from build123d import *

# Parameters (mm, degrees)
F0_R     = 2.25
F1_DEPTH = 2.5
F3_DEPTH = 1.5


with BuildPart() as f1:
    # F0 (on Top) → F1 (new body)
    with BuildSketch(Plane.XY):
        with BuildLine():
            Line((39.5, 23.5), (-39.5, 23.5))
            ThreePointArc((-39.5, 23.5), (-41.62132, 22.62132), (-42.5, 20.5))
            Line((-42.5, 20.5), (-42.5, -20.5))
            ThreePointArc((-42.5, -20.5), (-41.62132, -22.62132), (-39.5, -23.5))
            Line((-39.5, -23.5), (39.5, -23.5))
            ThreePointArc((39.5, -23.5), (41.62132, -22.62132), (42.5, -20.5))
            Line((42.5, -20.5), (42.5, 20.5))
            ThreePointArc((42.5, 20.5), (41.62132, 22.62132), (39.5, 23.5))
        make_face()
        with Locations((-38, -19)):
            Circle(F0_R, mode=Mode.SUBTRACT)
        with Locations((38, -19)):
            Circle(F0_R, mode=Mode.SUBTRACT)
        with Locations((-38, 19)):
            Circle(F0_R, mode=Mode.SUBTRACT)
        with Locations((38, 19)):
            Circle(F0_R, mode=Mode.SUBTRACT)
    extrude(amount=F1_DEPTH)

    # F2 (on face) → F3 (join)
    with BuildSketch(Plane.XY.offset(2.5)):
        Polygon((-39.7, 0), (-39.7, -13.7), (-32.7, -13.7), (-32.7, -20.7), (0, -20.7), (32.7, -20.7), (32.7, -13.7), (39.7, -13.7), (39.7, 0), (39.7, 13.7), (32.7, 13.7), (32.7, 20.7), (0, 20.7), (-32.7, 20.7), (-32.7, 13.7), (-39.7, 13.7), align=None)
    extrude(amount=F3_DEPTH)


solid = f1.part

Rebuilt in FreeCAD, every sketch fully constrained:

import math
import FreeCAD as App
import Part
import Sketcher

V = App.Vector

doc = App.newDocument("Part")
body = doc.addObject("PartDesign::Body", "Body")

sketch1 = body.newObject("Sketcher::SketchObject", "Sketch")
sketch1.AttachmentSupport = (doc.getObject("XY_Plane"), [""])
sketch1.MapMode = "FlatFace"
sketch1.addGeometry(Part.LineSegment(V(39.5, 23.5, 0), V(-39.5, 23.5, 0)), False)
sketch1.addGeometry(Part.ArcOfCircle(Part.Circle(V(-39.499999, 20.499999, 0), V(0, 0, 1), 3.000001), math.radians(90.000022), math.radians(179.999978)), False)
sketch1.addGeometry(Part.LineSegment(V(-42.5, 20.5, 0), V(-42.5, -20.5, 0)), False)
sketch1.addGeometry(Part.ArcOfCircle(Part.Circle(V(-39.499999, -20.499999, 0), V(0, 0, 1), 3.000001), math.radians(-179.999978), math.radians(-90.000022)), False)
sketch1.addGeometry(Part.LineSegment(V(-39.5, -23.5, 0), V(39.5, -23.5, 0)), False)
sketch1.addGeometry(Part.ArcOfCircle(Part.Circle(V(39.499999, -20.499999, 0), V(0, 0, 1), 3.000001), math.radians(-89.999978), math.radians(-0.000022)), False)
sketch1.addGeometry(Part.LineSegment(V(42.5, -20.5, 0), V(42.5, 20.5, 0)), False)
sketch1.addGeometry(Part.ArcOfCircle(Part.Circle(V(39.499999, 20.499999, 0), V(0, 0, 1), 3.000001), math.radians(0.000022), math.radians(89.999978)), False)
sketch1.addGeometry(Part.Circle(V(-38, -19, 0), V(0, 0, 1), 2.25), False)
sketch1.addGeometry(Part.Circle(V(38, -19, 0), V(0, 0, 1), 2.25), False)
sketch1.addGeometry(Part.Circle(V(-38, 19, 0), V(0, 0, 1), 2.25), False)
sketch1.addGeometry(Part.Circle(V(38, 19, 0), V(0, 0, 1), 2.25), False)
sketch1.addConstraint(Sketcher.Constraint("Tangent", 0, 2, 1, 1))
sketch1.addConstraint(Sketcher.Constraint("Tangent", 1, 2, 2, 1))
sketch1.addConstraint(Sketcher.Constraint("Tangent", 2, 2, 3, 1))
sketch1.addConstraint(Sketcher.Constraint("Tangent", 3, 2, 4, 1))
sketch1.addConstraint(Sketcher.Constraint("Tangent", 4, 2, 5, 1))
sketch1.addConstraint(Sketcher.Constraint("Tangent", 5, 2, 6, 1))
sketch1.addConstraint(Sketcher.Constraint("Tangent", 6, 2, 7, 1))
sketch1.addConstraint(Sketcher.Constraint("Tangent", 7, 2, 0, 1))
sketch1.addConstraint(Sketcher.Constraint("Horizontal", 0))
sketch1.addConstraint(Sketcher.Constraint("Vertical", 2))
sketch1.addConstraint(Sketcher.Constraint("Horizontal", 4))
sketch1.addConstraint(Sketcher.Constraint("Vertical", 6))
sketch1.addConstraint(Sketcher.Constraint("Equal", 1, 3))
sketch1.addConstraint(Sketcher.Constraint("Equal", 3, 5))
sketch1.addConstraint(Sketcher.Constraint("Equal", 5, 7))
sketch1.addConstraint(Sketcher.Constraint("Equal", 8, 9))
sketch1.addConstraint(Sketcher.Constraint("Equal", 9, 10))
sketch1.addConstraint(Sketcher.Constraint("Equal", 10, 11))
sketch1.addConstraint(Sketcher.Constraint("Symmetric", 1, 3, 5, 3, -1, 1))
sketch1.addConstraint(Sketcher.Constraint("Symmetric", 9, 3, 10, 3, -1, 1))
sketch1.addConstraint(Sketcher.Constraint("Symmetric", 8, 3, 11, 3, -1, 1))
sketch1.addConstraint(Sketcher.Constraint("Symmetric", 8, 3, 9, 3, -2))
sketch1.addConstraint(Sketcher.Constraint("Radius", 1, 3.000001))
sketch1.addConstraint(Sketcher.Constraint("Diameter", 8, 4.5))
sketch1.addConstraint(Sketcher.Constraint("DistanceX", 0, 2, 0, 1, 79.0))
sketch1.addConstraint(Sketcher.Constraint("DistanceY", 2, 2, 2, 1, 41.0))
sketch1.addConstraint(Sketcher.Constraint("DistanceX", 8, 3, -1, 1, 38.0))
sketch1.addConstraint(Sketcher.Constraint("DistanceY", 8, 3, -1, 1, 19.0))
pad1 = body.newObject("PartDesign::Pad", "Pad")
pad1.Profile = sketch1
pad1.Length = 2.5

sketch2 = body.newObject("Sketcher::SketchObject", "Sketch001")
sketch2.AttachmentSupport = (doc.getObject("XY_Plane"), [""])
sketch2.MapMode = "FlatFace"
sketch2.AttachmentOffset = App.Placement(V(0, 0, 2.5), App.Rotation())
sketch2.addGeometry(Part.LineSegment(V(-39.7, -13.7, 0), V(-32.7, -13.7, 0)), False)
sketch2.addGeometry(Part.LineSegment(V(-32.7, -13.7, 0), V(-32.7, -20.7, 0)), False)
sketch2.addGeometry(Part.LineSegment(V(-32.7, -20.7, 0), V(32.7, -20.7, 0)), False)
sketch2.addGeometry(Part.LineSegment(V(32.7, -20.7, 0), V(32.7, -13.7, 0)), False)
sketch2.addGeometry(Part.LineSegment(V(32.7, -13.7, 0), V(39.7, -13.7, 0)), False)
sketch2.addGeometry(Part.LineSegment(V(39.7, -13.7, 0), V(39.7, 13.7, 0)), False)
sketch2.addGeometry(Part.LineSegment(V(39.7, 13.7, 0), V(32.7, 13.7, 0)), False)
sketch2.addGeometry(Part.LineSegment(V(32.7, 13.7, 0), V(32.7, 20.7, 0)), False)
sketch2.addGeometry(Part.LineSegment(V(32.7, 20.7, 0), V(-32.7, 20.7, 0)), False)
sketch2.addGeometry(Part.LineSegment(V(-32.7, 20.7, 0), V(-32.7, 13.7, 0)), False)
sketch2.addGeometry(Part.LineSegment(V(-32.7, 13.7, 0), V(-39.7, 13.7, 0)), False)
sketch2.addGeometry(Part.LineSegment(V(-39.7, 13.7, 0), V(-39.7, -13.7, 0)), False)
sketch2.addConstraint(Sketcher.Constraint("Coincident", 0, 2, 1, 1))
sketch2.addConstraint(Sketcher.Constraint("Coincident", 1, 2, 2, 1))
sketch2.addConstraint(Sketcher.Constraint("Coincident", 2, 2, 3, 1))
sketch2.addConstraint(Sketcher.Constraint("Coincident", 3, 2, 4, 1))
sketch2.addConstraint(Sketcher.Constraint("Coincident", 4, 2, 5, 1))
sketch2.addConstraint(Sketcher.Constraint("Coincident", 5, 2, 6, 1))
sketch2.addConstraint(Sketcher.Constraint("Coincident", 6, 2, 7, 1))
sketch2.addConstraint(Sketcher.Constraint("Coincident", 7, 2, 8, 1))
sketch2.addConstraint(Sketcher.Constraint("Coincident", 8, 2, 9, 1))
sketch2.addConstraint(Sketcher.Constraint("Coincident", 9, 2, 10, 1))
sketch2.addConstraint(Sketcher.Constraint("Coincident", 10, 2, 11, 1))
sketch2.addConstraint(Sketcher.Constraint("Coincident", 11, 2, 0, 1))
sketch2.addConstraint(Sketcher.Constraint("Horizontal", 0))
sketch2.addConstraint(Sketcher.Constraint("Vertical", 1))
sketch2.addConstraint(Sketcher.Constraint("Horizontal", 2))
sketch2.addConstraint(Sketcher.Constraint("Vertical", 3))
sketch2.addConstraint(Sketcher.Constraint("Horizontal", 4))
sketch2.addConstraint(Sketcher.Constraint("Vertical", 5))
sketch2.addConstraint(Sketcher.Constraint("Horizontal", 6))
sketch2.addConstraint(Sketcher.Constraint("Vertical", 7))
sketch2.addConstraint(Sketcher.Constraint("Horizontal", 8))
sketch2.addConstraint(Sketcher.Constraint("Vertical", 9))
sketch2.addConstraint(Sketcher.Constraint("Horizontal", 10))
sketch2.addConstraint(Sketcher.Constraint("Vertical", 11))
sketch2.addConstraint(Sketcher.Constraint("Symmetric", 0, 2, 6, 2, -1, 1))
sketch2.addConstraint(Sketcher.Constraint("Symmetric", 2, 2, 8, 2, -1, 1))
sketch2.addConstraint(Sketcher.Constraint("Symmetric", 4, 2, 10, 2, -1, 1))
sketch2.addConstraint(Sketcher.Constraint("Symmetric", 0, 2, 3, 2, -2))
sketch2.addConstraint(Sketcher.Constraint("Equal", 10, 1))
sketch2.addConstraint(Sketcher.Constraint("DistanceX", 0, 1, 0, 2, 7.0))
sketch2.addConstraint(Sketcher.Constraint("DistanceX", 2, 1, 2, 2, 65.4))
sketch2.addConstraint(Sketcher.Constraint("DistanceY", 5, 1, 5, 2, 27.4))
pad2 = body.newObject("PartDesign::Pad", "Pad001")
pad2.Profile = sketch2
pad2.Length = 1.5

doc.recompute()
